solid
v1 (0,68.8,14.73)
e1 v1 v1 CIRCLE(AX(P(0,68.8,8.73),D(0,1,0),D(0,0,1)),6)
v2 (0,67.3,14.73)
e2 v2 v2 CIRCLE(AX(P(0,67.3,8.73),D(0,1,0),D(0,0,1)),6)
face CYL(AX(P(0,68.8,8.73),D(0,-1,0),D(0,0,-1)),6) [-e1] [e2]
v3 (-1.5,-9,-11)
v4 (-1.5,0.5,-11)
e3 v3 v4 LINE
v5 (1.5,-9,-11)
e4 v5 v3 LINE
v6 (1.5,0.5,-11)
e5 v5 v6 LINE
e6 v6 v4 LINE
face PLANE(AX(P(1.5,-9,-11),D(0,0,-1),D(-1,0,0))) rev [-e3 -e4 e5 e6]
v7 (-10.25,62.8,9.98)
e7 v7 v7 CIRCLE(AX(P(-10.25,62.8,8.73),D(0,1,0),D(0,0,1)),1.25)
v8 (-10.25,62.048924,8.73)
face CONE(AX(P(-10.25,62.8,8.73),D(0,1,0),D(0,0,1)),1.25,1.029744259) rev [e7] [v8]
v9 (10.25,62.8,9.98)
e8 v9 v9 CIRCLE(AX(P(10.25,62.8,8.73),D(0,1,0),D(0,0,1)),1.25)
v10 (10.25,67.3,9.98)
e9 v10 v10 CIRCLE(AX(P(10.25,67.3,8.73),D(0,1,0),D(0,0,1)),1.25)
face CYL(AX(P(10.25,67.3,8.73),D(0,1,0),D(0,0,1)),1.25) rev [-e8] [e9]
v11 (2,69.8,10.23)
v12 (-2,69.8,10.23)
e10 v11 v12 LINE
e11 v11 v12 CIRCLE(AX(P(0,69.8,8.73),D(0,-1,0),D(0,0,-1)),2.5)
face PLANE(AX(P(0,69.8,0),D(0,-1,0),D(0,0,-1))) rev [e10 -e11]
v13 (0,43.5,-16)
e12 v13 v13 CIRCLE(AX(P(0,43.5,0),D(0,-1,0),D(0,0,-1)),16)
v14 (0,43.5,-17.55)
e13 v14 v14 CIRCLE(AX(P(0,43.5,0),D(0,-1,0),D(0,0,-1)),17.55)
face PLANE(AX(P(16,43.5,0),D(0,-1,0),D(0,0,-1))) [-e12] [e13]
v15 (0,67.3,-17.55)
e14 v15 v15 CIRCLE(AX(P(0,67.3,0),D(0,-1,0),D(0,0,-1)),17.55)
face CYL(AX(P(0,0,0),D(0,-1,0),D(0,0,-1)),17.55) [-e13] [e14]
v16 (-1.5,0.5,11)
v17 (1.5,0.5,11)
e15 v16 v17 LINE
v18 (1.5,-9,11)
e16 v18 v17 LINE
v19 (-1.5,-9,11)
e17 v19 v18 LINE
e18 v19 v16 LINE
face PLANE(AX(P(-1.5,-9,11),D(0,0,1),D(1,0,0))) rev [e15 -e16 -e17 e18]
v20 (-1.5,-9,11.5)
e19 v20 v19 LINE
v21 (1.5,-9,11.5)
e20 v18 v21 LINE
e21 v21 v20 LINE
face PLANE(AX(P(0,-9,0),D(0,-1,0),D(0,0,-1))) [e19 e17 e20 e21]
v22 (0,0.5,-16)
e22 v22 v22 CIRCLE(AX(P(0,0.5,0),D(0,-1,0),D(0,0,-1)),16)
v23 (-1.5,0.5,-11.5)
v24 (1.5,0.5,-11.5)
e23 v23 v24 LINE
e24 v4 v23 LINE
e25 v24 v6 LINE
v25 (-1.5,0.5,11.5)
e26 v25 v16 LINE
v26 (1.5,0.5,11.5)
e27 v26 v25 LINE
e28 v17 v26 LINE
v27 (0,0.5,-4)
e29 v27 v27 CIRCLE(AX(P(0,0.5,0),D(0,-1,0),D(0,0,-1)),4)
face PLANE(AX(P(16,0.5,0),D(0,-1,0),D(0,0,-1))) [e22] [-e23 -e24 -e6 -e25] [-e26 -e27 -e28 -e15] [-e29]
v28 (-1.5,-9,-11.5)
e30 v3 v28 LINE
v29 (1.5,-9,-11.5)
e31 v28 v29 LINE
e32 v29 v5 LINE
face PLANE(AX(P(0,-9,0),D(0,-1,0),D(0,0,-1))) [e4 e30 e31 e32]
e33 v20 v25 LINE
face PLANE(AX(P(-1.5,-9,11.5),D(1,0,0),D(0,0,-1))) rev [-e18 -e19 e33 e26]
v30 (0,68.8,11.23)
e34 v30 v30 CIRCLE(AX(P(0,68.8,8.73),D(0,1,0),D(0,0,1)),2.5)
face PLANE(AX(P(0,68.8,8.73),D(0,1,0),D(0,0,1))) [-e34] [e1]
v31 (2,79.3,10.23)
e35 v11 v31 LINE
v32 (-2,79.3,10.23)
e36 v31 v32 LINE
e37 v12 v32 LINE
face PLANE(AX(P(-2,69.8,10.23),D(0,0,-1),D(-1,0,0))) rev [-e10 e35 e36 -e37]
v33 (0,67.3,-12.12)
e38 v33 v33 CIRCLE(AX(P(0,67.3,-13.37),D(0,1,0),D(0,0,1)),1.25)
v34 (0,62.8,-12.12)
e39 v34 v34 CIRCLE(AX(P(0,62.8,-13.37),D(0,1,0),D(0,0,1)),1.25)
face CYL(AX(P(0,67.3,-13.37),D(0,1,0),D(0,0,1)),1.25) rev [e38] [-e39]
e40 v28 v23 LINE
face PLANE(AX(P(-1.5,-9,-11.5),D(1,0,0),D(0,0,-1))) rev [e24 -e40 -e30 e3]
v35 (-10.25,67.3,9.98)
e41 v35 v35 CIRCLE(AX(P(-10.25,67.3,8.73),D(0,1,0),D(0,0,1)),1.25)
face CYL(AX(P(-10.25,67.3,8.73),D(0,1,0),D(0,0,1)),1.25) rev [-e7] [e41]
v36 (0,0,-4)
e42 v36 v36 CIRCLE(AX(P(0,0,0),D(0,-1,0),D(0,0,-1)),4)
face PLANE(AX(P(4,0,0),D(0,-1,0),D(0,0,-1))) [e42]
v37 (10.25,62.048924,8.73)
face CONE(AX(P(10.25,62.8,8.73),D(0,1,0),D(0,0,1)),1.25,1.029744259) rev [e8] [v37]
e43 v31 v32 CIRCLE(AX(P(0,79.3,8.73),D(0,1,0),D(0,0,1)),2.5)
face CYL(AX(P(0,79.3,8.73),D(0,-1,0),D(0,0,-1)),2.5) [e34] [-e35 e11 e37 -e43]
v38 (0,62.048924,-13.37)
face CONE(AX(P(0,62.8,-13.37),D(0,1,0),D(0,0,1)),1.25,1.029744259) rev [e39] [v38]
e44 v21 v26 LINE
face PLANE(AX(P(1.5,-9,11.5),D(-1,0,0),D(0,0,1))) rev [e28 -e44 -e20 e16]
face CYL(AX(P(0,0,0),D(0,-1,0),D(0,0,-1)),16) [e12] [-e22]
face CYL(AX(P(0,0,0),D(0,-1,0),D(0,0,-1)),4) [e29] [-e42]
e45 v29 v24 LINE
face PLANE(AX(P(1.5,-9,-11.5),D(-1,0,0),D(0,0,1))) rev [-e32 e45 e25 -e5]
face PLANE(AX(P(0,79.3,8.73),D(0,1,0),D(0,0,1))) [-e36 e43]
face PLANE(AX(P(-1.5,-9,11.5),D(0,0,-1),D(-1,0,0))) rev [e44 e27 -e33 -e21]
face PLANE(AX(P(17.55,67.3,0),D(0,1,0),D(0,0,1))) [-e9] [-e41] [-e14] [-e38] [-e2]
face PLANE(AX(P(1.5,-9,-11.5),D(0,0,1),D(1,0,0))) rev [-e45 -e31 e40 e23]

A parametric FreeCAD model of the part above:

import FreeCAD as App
import Part
import Sketcher
from FreeCAD import Vector


def add_polygon(sketch, points):
    """Adds a closed chain of lines whose ends are joined by coincident constraints."""
    first, n = sketch.GeometryCount, len(points)
    for a, b in zip(points, points[1:] + points[:1]):
        sketch.addGeometry(Part.LineSegment(App.Vector(*a, 0), App.Vector(*b, 0)), False)
    for i in range(n):
        sketch.addConstraint(Sketcher.Constraint("Coincident", first + i, 2, first + (i + 1) % n, 1))

doc = App.newDocument("Part")
body = doc.addObject("PartDesign::Body", "Body")

# Sketch on XY plane
sketch1 = body.newObject("Sketcher::SketchObject", "Sketch")
sketch1.AttachmentSupport = (doc.getObject("XY_Plane"), [""])
sketch1.MapMode = "FlatFace"
add_polygon(sketch1, [(4, 0.5), (16, 0.5), (16, 43.5), (17.6, 43.5), (17.6, 67.3), (0, 67.3), (0, 0), (4, 0)])  # lines 0-7
sketch1.addConstraint([
    Sketcher.Constraint("Horizontal", 0),
    Sketcher.Constraint("Vertical", 1),
    Sketcher.Constraint("Horizontal", 2),
    Sketcher.Constraint("Vertical", 3),
    Sketcher.Constraint("Horizontal", 4),
    Sketcher.Constraint("Vertical", 5),
    Sketcher.Constraint("Horizontal", 6),
    Sketcher.Constraint("Vertical", 7),
    Sketcher.Constraint("Coincident", 5, 2, -1, 1),
    Sketcher.Constraint("DistanceX", 0, 1, 0, 2, 12.0),
    Sketcher.Constraint("DistanceX", 6, 1, 6, 2, 4.0),
    Sketcher.Constraint("DistanceY", 1, 1, 1, 2, 43.0),
    Sketcher.Constraint("DistanceY", 3, 1, 3, 2, 23.8),
    Sketcher.Constraint("DistanceY", 5, 2, 5, 1, 67.3),
    Sketcher.Constraint("DistanceX", 2, 1, 2, 2, 1.55),
])
revolution = body.newObject("PartDesign::Revolution", "Revolution")
revolution.Profile = sketch1
revolution.ReferenceAxis = (sketch1, ["V_Axis"])
revolution.Angle = 360

# Sketch on XZ plane
sketch2 = body.newObject("Sketcher::SketchObject", "Sketch001")
sketch2.AttachmentSupport = (doc.getObject("XZ_Plane"), [""])
sketch2.MapMode = "FlatFace"
sketch2.AttachmentOffset = App.Placement(Vector(0, 0, -67.3), App.Rotation())
sketch2.addGeometry(Part.Circle(Vector(0, 9, 0), Vector(0, 0, 1), 6), False)
sketch2.addConstraint([
    Sketcher.Constraint("PointOnObject", 0, 3, -2),
    Sketcher.Constraint("Diameter", 0, 12.0),
    Sketcher.Constraint("DistanceY", -1, 1, 0, 3, 8.73),
])
pad1 = body.newObject("PartDesign::Pad", "Pad")
pad1.Profile = sketch2
pad1.Length = 1.5
pad1.Reversed = True

# Sketch on XZ plane
sketch3 = body.newObject("Sketcher::SketchObject", "Sketch002")
sketch3.AttachmentSupport = (doc.getObject("XZ_Plane"), [""])
sketch3.MapMode = "FlatFace"
sketch3.AttachmentOffset = App.Placement(Vector(0, 0, -68.8), App.Rotation())
sketch3.addGeometry(Part.Circle(Vector(0, 8.7, 0), Vector(0, 0, 1), 2.5), False)
sketch3.addConstraint([
    Sketcher.Constraint("PointOnObject", 0, 3, -2),
    Sketcher.Constraint("Diameter", 0, 5.0),
    Sketcher.Constraint("DistanceY", -1, 1, 0, 3, 8.73),
])
pad2 = body.newObject("PartDesign::Pad", "Pad001")
pad2.Profile = sketch3
pad2.Length = 10.5
pad2.Reversed = True

# Sketch on XZ plane
sketch4 = body.newObject("Sketcher::SketchObject", "Sketch003")
sketch4.AttachmentSupport = (doc.getObject("XZ_Plane"), [""])
sketch4.MapMode = "FlatFace"
sketch4.AttachmentOffset = App.Placement(Vector(0, 0, -67.3), App.Rotation())
sketch4.addGeometry([
    Part.Circle(Vector(0, -13.4, 0), Vector(0, 0, 1), 1.2),
    Part.Circle(Vector(10.2, 8.7, 0), Vector(0, 0, 1), 1.2),
    Part.Circle(Vector(-10.2, 8.7, 0), Vector(0, 0, 1), 1.2),
], False)
sketch4.addConstraint([
    Sketcher.Constraint("Equal", 0, 1),
    Sketcher.Constraint("Equal", 1, 2),
    Sketcher.Constraint("Symmetric", 1, 3, 2, 3, -2),
    Sketcher.Constraint("PointOnObject", 0, 3, -2),
    Sketcher.Constraint("Diameter", 0, 2.5),
    Sketcher.Constraint("DistanceY", 0, 3, 1, 3, 22.1),
    Sketcher.Constraint("DistanceX", 2, 3, 1, 3, 20.5),
    Sketcher.Constraint("DistanceY", 0, 3, -1, 1, 13.37),
])
doc.recompute()
hole = body.newObject("PartDesign::Hole", "Hole")
hole.Profile = sketch4
hole.ThreadType = "None"
hole.Diameter = 2.5
hole.DepthType = "Dimension"
hole.Depth = 4.5
hole.DrillPoint = "Angled"
hole.DrillPointAngle = 118
hole.Reversed = True

# Sketch on XZ plane
sketch5 = body.newObject("Sketcher::SketchObject", "Sketch004")
sketch5.AttachmentSupport = (doc.getObject("XZ_Plane"), [""])
sketch5.MapMode = "FlatFace"
sketch5.AttachmentOffset = App.Placement(Vector(0, 0, -79.3), App.Rotation())
add_polygon(sketch5, [(-2, 10.2), (-2, 12), (2, 12), (2, 10.2)])  # lines 0-3
sketch5.addConstraint([
    Sketcher.Constraint("Vertical", 0),
    Sketcher.Constraint("Horizontal", 1),
    Sketcher.Constraint("Vertical", 2),
    Sketcher.Constraint("Horizontal", 3),
    Sketcher.Constraint("DistanceX", 1, 1, 1, 2, 4.0),
    Sketcher.Constraint("DistanceX", 0, 2, -1, 1, 2.0),
    Sketcher.Constraint("DistanceY", -1, 1, 2, 2, 10.23),
    Sketcher.Constraint("DistanceY", 0, 1, 0, 2, 1.800245),
])
pocket1 = body.newObject("PartDesign::Pocket", "Pocket")
pocket1.Profile = sketch5
pocket1.Length = 9.5
pocket1.Reversed = True

# Sketch on XZ plane
sketch6 = body.newObject("Sketcher::SketchObject", "Sketch005")
sketch6.AttachmentSupport = (doc.getObject("XZ_Plane"), [""])
sketch6.MapMode = "FlatFace"
sketch6.AttachmentOffset = App.Placement(Vector(0, 0, -0.5), App.Rotation())
add_polygon(sketch6, [(-1.5, -11), (-1.5, -11.5), (1.5, -11.5), (1.5, -11)])  # lines 0-3
add_polygon(sketch6, [(-1.5, 11.5), (-1.5, 11), (1.5, 11), (1.5, 11.5)])  # lines 4-7
sketch6.addConstraint([
    Sketcher.Constraint("Vertical", 0),
    Sketcher.Constraint("Horizontal", 1),
    Sketcher.Constraint("Vertical", 2),
    Sketcher.Constraint("Horizontal", 3),
    Sketcher.Constraint("Vertical", 4),
    Sketcher.Constraint("Horizontal", 5),
    Sketcher.Constraint("Vertical", 6),
    Sketcher.Constraint("Horizontal", 7),
    Sketcher.Constraint("Symmetric", 2, 2, 4, 2, -1, 1),
    Sketcher.Constraint("Symmetric", 0, 2, 6, 2, -1, 1),
    Sketcher.Constraint("Vertical", 3, 2, 4, 2),
    Sketcher.Constraint("DistanceX", 1, 1, 1, 2, 3.0),
    Sketcher.Constraint("DistanceY", 0, 2, 0, 1, 0.5),
    Sketcher.Constraint("DistanceY", 2, 2, -1, 1, 11.0),
])
pad3 = body.newObject("PartDesign::Pad", "Pad002")
pad3.Profile = sketch6
pad3.Length = 9.5

doc.recompute()
